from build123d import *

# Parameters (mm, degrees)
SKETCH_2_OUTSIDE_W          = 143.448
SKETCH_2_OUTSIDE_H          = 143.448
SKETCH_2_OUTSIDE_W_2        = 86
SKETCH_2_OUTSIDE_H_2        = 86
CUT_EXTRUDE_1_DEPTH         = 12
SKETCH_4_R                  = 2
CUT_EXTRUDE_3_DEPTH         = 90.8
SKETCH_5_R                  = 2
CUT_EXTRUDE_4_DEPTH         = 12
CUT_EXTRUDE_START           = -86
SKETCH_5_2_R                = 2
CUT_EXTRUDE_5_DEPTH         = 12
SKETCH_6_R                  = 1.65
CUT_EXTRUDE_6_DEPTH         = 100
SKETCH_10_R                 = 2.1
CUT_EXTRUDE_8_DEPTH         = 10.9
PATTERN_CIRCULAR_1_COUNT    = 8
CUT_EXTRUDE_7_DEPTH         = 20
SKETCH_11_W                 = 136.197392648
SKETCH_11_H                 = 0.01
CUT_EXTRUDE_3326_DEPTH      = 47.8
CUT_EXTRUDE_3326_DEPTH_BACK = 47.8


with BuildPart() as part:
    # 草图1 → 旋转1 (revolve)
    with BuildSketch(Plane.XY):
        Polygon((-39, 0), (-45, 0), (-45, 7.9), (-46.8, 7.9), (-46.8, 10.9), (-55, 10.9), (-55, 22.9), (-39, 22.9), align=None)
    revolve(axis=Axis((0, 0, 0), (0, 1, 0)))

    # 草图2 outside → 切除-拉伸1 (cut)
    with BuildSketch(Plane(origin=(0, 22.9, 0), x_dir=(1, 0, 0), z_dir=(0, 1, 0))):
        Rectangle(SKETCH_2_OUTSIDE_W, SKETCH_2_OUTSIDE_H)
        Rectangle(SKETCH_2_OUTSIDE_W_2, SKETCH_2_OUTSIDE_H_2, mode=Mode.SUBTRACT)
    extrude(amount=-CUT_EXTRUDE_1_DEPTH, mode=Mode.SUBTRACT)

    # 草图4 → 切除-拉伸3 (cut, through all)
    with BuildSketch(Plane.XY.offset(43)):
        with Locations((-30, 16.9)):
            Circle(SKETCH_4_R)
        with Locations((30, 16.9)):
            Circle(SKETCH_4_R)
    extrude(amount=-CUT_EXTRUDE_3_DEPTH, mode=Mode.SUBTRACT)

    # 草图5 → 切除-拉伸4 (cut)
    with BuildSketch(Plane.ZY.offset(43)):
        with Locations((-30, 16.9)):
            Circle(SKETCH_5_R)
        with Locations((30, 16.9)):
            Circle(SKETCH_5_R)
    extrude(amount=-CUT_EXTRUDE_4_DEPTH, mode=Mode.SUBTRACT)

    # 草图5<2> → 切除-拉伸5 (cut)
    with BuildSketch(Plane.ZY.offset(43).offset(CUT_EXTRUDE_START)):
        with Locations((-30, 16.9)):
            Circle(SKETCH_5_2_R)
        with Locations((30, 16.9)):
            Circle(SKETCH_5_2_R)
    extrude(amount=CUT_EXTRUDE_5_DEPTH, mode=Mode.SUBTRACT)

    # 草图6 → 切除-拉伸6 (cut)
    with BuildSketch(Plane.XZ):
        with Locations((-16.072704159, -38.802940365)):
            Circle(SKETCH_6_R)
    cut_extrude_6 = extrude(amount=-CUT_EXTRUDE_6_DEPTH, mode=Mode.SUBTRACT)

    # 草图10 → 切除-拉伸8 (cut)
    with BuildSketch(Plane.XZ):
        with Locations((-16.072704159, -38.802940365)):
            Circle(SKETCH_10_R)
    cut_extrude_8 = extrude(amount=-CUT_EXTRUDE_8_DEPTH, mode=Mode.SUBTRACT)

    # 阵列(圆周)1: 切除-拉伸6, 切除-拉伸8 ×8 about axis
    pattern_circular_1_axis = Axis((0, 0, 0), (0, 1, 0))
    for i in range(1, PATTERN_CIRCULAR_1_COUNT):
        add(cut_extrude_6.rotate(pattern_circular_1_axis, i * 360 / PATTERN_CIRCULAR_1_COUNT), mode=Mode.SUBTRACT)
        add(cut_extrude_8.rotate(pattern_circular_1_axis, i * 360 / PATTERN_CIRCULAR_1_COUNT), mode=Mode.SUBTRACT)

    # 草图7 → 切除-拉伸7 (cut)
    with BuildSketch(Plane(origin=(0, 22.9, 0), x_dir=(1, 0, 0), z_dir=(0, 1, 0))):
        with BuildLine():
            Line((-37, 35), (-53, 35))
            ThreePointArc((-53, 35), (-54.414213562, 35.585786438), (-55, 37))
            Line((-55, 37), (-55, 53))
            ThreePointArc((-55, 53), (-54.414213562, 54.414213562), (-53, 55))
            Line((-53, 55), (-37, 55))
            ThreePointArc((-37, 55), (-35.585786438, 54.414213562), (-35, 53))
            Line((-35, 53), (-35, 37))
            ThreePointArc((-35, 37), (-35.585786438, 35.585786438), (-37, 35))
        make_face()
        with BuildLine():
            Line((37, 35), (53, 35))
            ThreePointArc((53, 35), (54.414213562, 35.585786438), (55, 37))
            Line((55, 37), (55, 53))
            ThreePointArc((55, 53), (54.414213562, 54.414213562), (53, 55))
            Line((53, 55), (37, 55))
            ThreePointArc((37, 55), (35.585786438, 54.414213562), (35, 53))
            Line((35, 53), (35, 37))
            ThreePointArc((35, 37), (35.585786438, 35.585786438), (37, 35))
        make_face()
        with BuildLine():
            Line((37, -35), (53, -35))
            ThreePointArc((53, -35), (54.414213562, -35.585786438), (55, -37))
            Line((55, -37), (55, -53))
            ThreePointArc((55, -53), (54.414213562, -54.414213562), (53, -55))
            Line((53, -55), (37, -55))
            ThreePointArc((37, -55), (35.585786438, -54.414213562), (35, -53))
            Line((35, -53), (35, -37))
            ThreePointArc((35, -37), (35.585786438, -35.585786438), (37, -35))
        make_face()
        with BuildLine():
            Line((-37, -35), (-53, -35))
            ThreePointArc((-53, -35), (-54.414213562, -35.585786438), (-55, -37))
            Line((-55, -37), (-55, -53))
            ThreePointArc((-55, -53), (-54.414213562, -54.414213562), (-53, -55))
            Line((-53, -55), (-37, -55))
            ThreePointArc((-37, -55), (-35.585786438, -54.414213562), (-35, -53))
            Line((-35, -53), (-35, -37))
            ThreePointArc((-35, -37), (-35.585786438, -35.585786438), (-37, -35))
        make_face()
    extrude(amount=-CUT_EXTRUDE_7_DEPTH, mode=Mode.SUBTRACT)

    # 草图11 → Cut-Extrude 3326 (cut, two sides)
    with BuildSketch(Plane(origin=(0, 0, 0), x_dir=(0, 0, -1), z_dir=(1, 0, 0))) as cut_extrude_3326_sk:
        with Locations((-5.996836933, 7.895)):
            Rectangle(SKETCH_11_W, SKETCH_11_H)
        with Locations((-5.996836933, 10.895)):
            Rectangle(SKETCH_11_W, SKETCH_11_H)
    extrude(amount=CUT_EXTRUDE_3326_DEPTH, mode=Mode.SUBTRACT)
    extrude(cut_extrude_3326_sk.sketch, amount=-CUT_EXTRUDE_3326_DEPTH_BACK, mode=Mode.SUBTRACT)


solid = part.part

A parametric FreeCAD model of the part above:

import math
import FreeCAD as App
import Part
import Sketcher
from FreeCAD import Vector
Q = App.Units.Quantity


def add_polygon(sketch, points):
    """Adds a closed chain of lines whose ends are joined by coincident constraints."""
    first, n = sketch.GeometryCount, len(points)
    for a, b in zip(points, points[1:] + points[:1]):
        sketch.addGeometry(Part.LineSegment(App.Vector(*a, 0), App.Vector(*b, 0)), False)
    for i in range(n):
        sketch.addConstraint(Sketcher.Constraint("Coincident", first + i, 2, first + (i + 1) % n, 1))

doc = App.newDocument("Part")
body = doc.addObject("PartDesign::Body", "Body")
body.AllowCompound = True

# Sketch on XY plane
sketch1 = doc.addObject("Sketcher::SketchObject", "Sketch")
body.addObject(sketch1)
sketch1.AttachmentSupport = (doc.XY_Plane, [""])
sketch1.MapMode = "FlatFace"
add_polygon(sketch1, [(-45, 0), (-39, 0), (-39, 22.9), (-55, 22.9), (-55, 10.9), (-46.8, 10.9), (-46.8, 7.9), (-45, 7.9)])  # lines 0-7
sketch1.addConstraint(Sketcher.Constraint("Horizontal", 0))
sketch1.addConstraint(Sketcher.Constraint("Vertical", 1))
sketch1.addConstraint(Sketcher.Constraint("Horizontal", 2))
sketch1.addConstraint(Sketcher.Constraint("Vertical", 3))
sketch1.addConstraint(Sketcher.Constraint("Horizontal", 4))
sketch1.addConstraint(Sketcher.Constraint("Vertical", 5))
sketch1.addConstraint(Sketcher.Constraint("Horizontal", 6))
sketch1.addConstraint(Sketcher.Constraint("Vertical", 7))
sketch1.addConstraint(Sketcher.Constraint("PointOnObject", 0, 2, -1))
sketch1.addConstraint(Sketcher.Constraint("DistanceX", 0, 1, 0, 2, Q("6 mm")))
sketch1.addConstraint(Sketcher.Constraint("DistanceX", 2, 2, 2, 1, Q("16 mm")))
sketch1.addConstraint(Sketcher.Constraint("DistanceY", 3, 2, 3, 1, Q("12 mm")))
sketch1.addConstraint(Sketcher.Constraint("DistanceY", 5, 2, 5, 1, Q("3 mm")))
sketch1.addConstraint(Sketcher.Constraint("DistanceX", 4, 1, 4, 2, Q("8.2 mm")))
sketch1.addConstraint(Sketcher.Constraint("DistanceY", 1, 1, 1, 2, Q("22.9 mm")))
sketch1.addConstraint(Sketcher.Constraint("DistanceX", 0, 2, -1, 1, Q("39 mm")))
revolution = doc.addObject("PartDesign::Revolution", "Revolution")
body.addObject(revolution)
revolution.Profile = sketch1
revolution.ReferenceAxis = (sketch1, ["V_Axis"])
revolution.Angle = 360

# Sketch on XZ plane
sketch2 = doc.addObject("Sketcher::SketchObject", "Sketch001")
body.addObject(sketch2)
sketch2.AttachmentSupport = (doc.XZ_Plane, [""])
sketch2.MapMode = "FlatFace"
sketch2.AttachmentOffset = App.Placement(Vector(0, 0, -22.9), App.Rotation())
add_polygon(sketch2, [(-71.724, -71.724), (-71.724, 71.724), (71.724, 71.724), (71.724, -71.724)])  # lines 0-3
add_polygon(sketch2, [(43, 43), (-43, 43), (-43, -43), (43, -43)])  # lines 4-7
sketch2.addConstraint(Sketcher.Constraint("Vertical", 0))
sketch2.addConstraint(Sketcher.Constraint("Horizontal", 1))
sketch2.addConstraint(Sketcher.Constraint("Vertical", 2))
sketch2.addConstraint(Sketcher.Constraint("Horizontal", 3))
sketch2.addConstraint(Sketcher.Constraint("Horizontal", 4))
sketch2.addConstraint(Sketcher.Constraint("Vertical", 5))
sketch2.addConstraint(Sketcher.Constraint("Horizontal", 6))
sketch2.addConstraint(Sketcher.Constraint("Vertical", 7))
sketch2.addConstraint(Sketcher.Constraint("Symmetric", 0, 2, 2, 2, -1, 1))
sketch2.addConstraint(Sketcher.Constraint("Symmetric", 4, 2, 6, 2, -1, 1))
sketch2.addConstraint(Sketcher.Constraint("Equal", 3, 0))
sketch2.addConstraint(Sketcher.Constraint("Equal", 6, 5))
sketch2.addConstraint(Sketcher.Constraint("DistanceX", 4, 2, 4, 1, Q("86 mm")))
sketch2.addConstraint(Sketcher.Constraint("DistanceX", 1, 1, 1, 2, Q("143.448 mm")))
pocket1 = doc.addObject("PartDesign::Pocket", "Pocket")
body.addObject(pocket1)
pocket1.Profile = sketch2
pocket1.Length = 12
pocket1.Reversed = True

# Sketch on XY plane
sketch3 = doc.addObject("Sketcher::SketchObject", "Sketch002")
body.addObject(sketch3)
sketch3.AttachmentSupport = (doc.XY_Plane, [""])
sketch3.MapMode = "FlatFace"
sketch3.AttachmentOffset = App.Placement(Vector(0, 0, 43), App.Rotation())
sketch3.addGeometry(Part.Circle(Vector(-30, 16.9, 0), Vector(0, 0, 1), 2), False)
sketch3.addGeometry(Part.Circle(Vector(30, 16.9, 0), Vector(0, 0, 1), 2), False)
sketch3.addConstraint(Sketcher.Constraint("Equal", 0, 1))
sketch3.addConstraint(Sketcher.Constraint("Symmetric", 0, 3, 1, 3, -2))
sketch3.addConstraint(Sketcher.Constraint("Diameter", 0, Q("4 mm")))
sketch3.addConstraint(Sketcher.Constraint("DistanceX", 0, 3, -1, 1, Q("30 mm")))
sketch3.addConstraint(Sketcher.Constraint("DistanceY", -1, 1, 0, 3, Q("16.9 mm")))
pocket2 = doc.addObject("PartDesign::Pocket", "Pocket001")
body.addObject(pocket2)
pocket2.Profile = sketch3
pocket2.Type = "ThroughAll"

# Sketch on YZ plane
sketch4 = doc.addObject("Sketcher::SketchObject", "Sketch003")
body.addObject(sketch4)
sketch4.AttachmentSupport = (doc.YZ_Plane, [""])
sketch4.MapMode = "FlatFace"
sketch4.AttachmentOffset = App.Placement(Vector(0, 0, -43), App.Rotation())
sketch4.addGeometry(Part.Circle(Vector(16.9, -30, 0), Vector(0, 0, 1), 2), False)
sketch4.addGeometry(Part.Circle(Vector(16.9, 30, 0), Vector(0, 0, 1), 2), False)
sketch4.addConstraint(Sketcher.Constraint("Equal", 0, 1))
sketch4.addConstraint(Sketcher.Constraint("Symmetric", 0, 3, 1, 3, -1))
sketch4.addConstraint(Sketcher.Constraint("Diameter", 0, Q("4 mm")))
sketch4.addConstraint(Sketcher.Constraint("DistanceY", 0, 3, -1, 1, Q("30 mm")))
sketch4.addConstraint(Sketcher.Constraint("DistanceX", -1, 1, 0, 3, Q("16.9 mm")))
pocket3 = doc.addObject("PartDesign::Pocket", "Pocket002")
body.addObject(pocket3)
pocket3.Profile = sketch4
pocket3.Length = 12
pocket3.Reversed = True

# Sketch on YZ plane
sketch5 = doc.addObject("Sketcher::SketchObject", "Sketch004")
body.addObject(sketch5)
sketch5.AttachmentSupport = (doc.YZ_Plane, [""])
sketch5.MapMode = "FlatFace"
sketch5.AttachmentOffset = App.Placement(Vector(0, 0, 43), App.Rotation())
sketch5.addGeometry(Part.Circle(Vector(16.9, -30, 0), Vector(0, 0, 1), 2), False)
sketch5.addGeometry(Part.Circle(Vector(16.9, 30, 0), Vector(0, 0, 1), 2), False)
sketch5.addConstraint(Sketcher.Constraint("Equal", 0, 1))
sketch5.addConstraint(Sketcher.Constraint("Symmetric", 0, 3, 1, 3, -1))
sketch5.addConstraint(Sketcher.Constraint("Diameter", 0, Q("4 mm")))
sketch5.addConstraint(Sketcher.Constraint("DistanceY", 0, 3, -1, 1, Q("30 mm")))
sketch5.addConstraint(Sketcher.Constraint("DistanceX", -1, 1, 0, 3, Q("16.9 mm")))
pocket4 = doc.addObject("PartDesign::Pocket", "Pocket003")
body.addObject(pocket4)
pocket4.Profile = sketch5
pocket4.Length = 12

# Sketch on XZ plane
sketch6 = doc.addObject("Sketcher::SketchObject", "Sketch005")
body.addObject(sketch6)
sketch6.AttachmentSupport = (doc.XZ_Plane, [""])
sketch6.MapMode = "FlatFace"
sketch6.addGeometry(Part.Circle(Vector(-16.072704, -38.80294, 0), Vector(0, 0, 1), 1.65), False)
sketch6.addConstraint(Sketcher.Constraint("Diameter", 0, Q("3.3 mm")))
sketch6.addConstraint(Sketcher.Constraint("DistanceY", 0, 3, -1, 1, Q("38.80294 mm")))
sketch6.addConstraint(Sketcher.Constraint("DistanceX", 0, 3, -1, 1, Q("16.072704 mm")))
pocket5 = doc.addObject("PartDesign::Pocket", "Pocket004")
body.addObject(pocket5)
pocket5.Profile = sketch6
pocket5.Length = 100

# Sketch on XZ plane
sketch7 = doc.addObject("Sketcher::SketchObject", "Sketch006")
body.addObject(sketch7)
sketch7.AttachmentSupport = (doc.XZ_Plane, [""])
sketch7.MapMode = "FlatFace"
sketch7.addGeometry(Part.Circle(Vector(-16.072704, -38.80294, 0), Vector(0, 0, 1), 2.1), False)
sketch7.addConstraint(Sketcher.Constraint("Diameter", 0, Q("4.2 mm")))
sketch7.addConstraint(Sketcher.Constraint("DistanceY", 0, 3, -1, 1, Q("38.80294 mm")))
sketch7.addConstraint(Sketcher.Constraint("DistanceX", 0, 3, -1, 1, Q("16.072704 mm")))
pocket6 = doc.addObject("PartDesign::Pocket", "Pocket005")
body.addObject(pocket6)
pocket6.Profile = sketch7
pocket6.Length = 10.9
doc.recompute()

polarpattern = doc.addObject("PartDesign::PolarPattern", "PolarPattern")
body.addObject(polarpattern)
polarpattern.Originals = [pocket5, pocket6]
polarpattern.Axis = (doc.Y_Axis, [""])
polarpattern.Angle = 360
polarpattern.Occurrences = 8
body.Tip = polarpattern

# Sketch on XZ plane
sketch8 = doc.addObject("Sketcher::SketchObject", "Sketch007")
body.addObject(sketch8)
sketch8.AttachmentSupport = (doc.XZ_Plane, [""])
sketch8.MapMode = "FlatFace"
sketch8.AttachmentOffset = App.Placement(Vector(0, 0, -22.9), App.Rotation())
sketch8.addGeometry(Part.LineSegment(Vector(-53, -35, 0), Vector(-37, -35, 0)), False)
sketch8.addGeometry(Part.ArcOfCircle(Part.Circle(Vector(-37, -37, 0), Vector(0, 0, 1), 2), math.radians(0), math.radians(90)), False)
sketch8.addGeometry(Part.LineSegment(Vector(-35, -37, 0), Vector(-35, -53, 0)), False)
sketch8.addGeometry(Part.ArcOfCircle(Part.Circle(Vector(-37, -53, 0), Vector(0, 0, 1), 2), math.radians(-90), math.radians(0)), False)
sketch8.addGeometry(Part.LineSegment(Vector(-37, -55, 0), Vector(-53, -55, 0)), False)
sketch8.addGeometry(Part.ArcOfCircle(Part.Circle(Vector(-53, -53, 0), Vector(0, 0, 1), 2), math.radians(-180), math.radians(-90)), False)
sketch8.addGeometry(Part.LineSegment(Vector(-55, -53, 0), Vector(-55, -37, 0)), False)
sketch8.addGeometry(Part.ArcOfCircle(Part.Circle(Vector(-53, -37, 0), Vector(0, 0, 1), 2), math.radians(90), math.radians(180)), False)
sketch8.addGeometry(Part.LineSegment(Vector(37, -35, 0), Vector(53, -35, 0)), False)
sketch8.addGeometry(Part.ArcOfCircle(Part.Circle(Vector(53, -37, 0), Vector(0, 0, 1), 2), math.radians(0), math.radians(90)), False)
sketch8.addGeometry(Part.LineSegment(Vector(55, -37, 0), Vector(55, -53, 0)), False)
sketch8.addGeometry(Part.ArcOfCircle(Part.Circle(Vector(53, -53, 0), Vector(0, 0, 1), 2), math.radians(-90), math.radians(0)), False)
sketch8.addGeometry(Part.LineSegment(Vector(53, -55, 0), Vector(37, -55, 0)), False)
sketch8.addGeometry(Part.ArcOfCircle(Part.Circle(Vector(37, -53, 0), Vector(0, 0, 1), 2), math.radians(-180), math.radians(-90)), False)
sketch8.addGeometry(Part.LineSegment(Vector(35, -53, 0), Vector(35, -37, 0)), False)
sketch8.addGeometry(Part.ArcOfCircle(Part.Circle(Vector(37, -37, 0), Vector(0, 0, 1), 2), math.radians(90), math.radians(180)), False)
sketch8.addGeometry(Part.LineSegment(Vector(53, 35, 0), Vector(37, 35, 0)), False)
sketch8.addGeometry(Part.ArcOfCircle(Part.Circle(Vector(37, 37, 0), Vector(0, 0, 1), 2), math.radians(-180), math.radians(-90)), False)
sketch8.addGeometry(Part.LineSegment(Vector(35, 37, 0), Vector(35, 53, 0)), False)
sketch8.addGeometry(Part.ArcOfCircle(Part.Circle(Vector(37, 53, 0), Vector(0, 0, 1), 2), math.radians(90), math.radians(180)), False)
sketch8.addGeometry(Part.LineSegment(Vector(37, 55, 0), Vector(53, 55, 0)), False)
sketch8.addGeometry(Part.ArcOfCircle(Part.Circle(Vector(53, 53, 0), Vector(0, 0, 1), 2), math.radians(0), math.radians(90)), False)
sketch8.addGeometry(Part.LineSegment(Vector(55, 53, 0), Vector(55, 37, 0)), False)
sketch8.addGeometry(Part.ArcOfCircle(Part.Circle(Vector(53, 37, 0), Vector(0, 0, 1), 2), math.radians(-90), math.radians(0)), False)
sketch8.addGeometry(Part.LineSegment(Vector(-37, 35, 0), Vector(-53, 35, 0)), False)
sketch8.addGeometry(Part.ArcOfCircle(Part.Circle(Vector(-53, 37, 0), Vector(0, 0, 1), 2), math.radians(-180), math.radians(-90)), False)
sketch8.addGeometry(Part.LineSegment(Vector(-55, 37, 0), Vector(-55, 53, 0)), False)
sketch8.addGeometry(Part.ArcOfCircle(Part.Circle(Vector(-53, 53, 0), Vector(0, 0, 1), 2), math.radians(90), math.radians(180)), False)
sketch8.addGeometry(Part.LineSegment(Vector(-53, 55, 0), Vector(-37, 55, 0)), False)
sketch8.addGeometry(Part.ArcOfCircle(Part.Circle(Vector(-37, 53, 0), Vector(0, 0, 1), 2), math.radians(0), math.radians(90)), False)
sketch8.addGeometry(Part.LineSegment(Vector(-35, 53, 0), Vector(-35, 37, 0)), False)
sketch8.addGeometry(Part.ArcOfCircle(Part.Circle(Vector(-37, 37, 0), Vector(0, 0, 1), 2), math.radians(-90), math.radians(0)), False)
sketch8.addConstraint(Sketcher.Constraint("Tangent", 0, 2, 1, 2))
sketch8.addConstraint(Sketcher.Constraint("Tangent", 1, 1, 2, 1))
sketch8.addConstraint(Sketcher.Constraint("Tangent", 2, 2, 3, 2))
sketch8.addConstraint(Sketcher.Constraint("Tangent", 3, 1, 4, 1))
sketch8.addConstraint(Sketcher.Constraint("Tangent", 4, 2, 5, 2))
sketch8.addConstraint(Sketcher.Constraint("Tangent", 5, 1, 6, 1))
sketch8.addConstraint(Sketcher.Constraint("Tangent", 6, 2, 7, 2))
sketch8.addConstraint(Sketcher.Constraint("Tangent", 7, 1, 0, 1))
sketch8.addConstraint(Sketcher.Constraint("Tangent", 8, 2, 9, 2))
sketch8.addConstraint(Sketcher.Constraint("Tangent", 9, 1, 10, 1))
sketch8.addConstraint(Sketcher.Constraint("Tangent", 10, 2, 11, 2))
sketch8.addConstraint(Sketcher.Constraint("Tangent", 11, 1, 12, 1))
sketch8.addConstraint(Sketcher.Constraint("Tangent", 12, 2, 13, 2))
sketch8.addConstraint(Sketcher.Constraint("Tangent", 13, 1, 14, 1))
sketch8.addConstraint(Sketcher.Constraint("Tangent", 14, 2, 15, 2))
sketch8.addConstraint(Sketcher.Constraint("Tangent", 15, 1, 8, 1))
sketch8.addConstraint(Sketcher.Constraint("Tangent", 16, 2, 17, 2))
sketch8.addConstraint(Sketcher.Constraint("Tangent", 17, 1, 18, 1))
sketch8.addConstraint(Sketcher.Constraint("Tangent", 18, 2, 19, 2))
sketch8.addConstraint(Sketcher.Constraint("Tangent", 19, 1, 20, 1))
sketch8.addConstraint(Sketcher.Constraint("Tangent", 20, 2, 21, 2))
sketch8.addConstraint(Sketcher.Constraint("Tangent", 21, 1, 22, 1))
sketch8.addConstraint(Sketcher.Constraint("Tangent", 22, 2, 23, 2))
sketch8.addConstraint(Sketcher.Constraint("Tangent", 23, 1, 16, 1))
sketch8.addConstraint(Sketcher.Constraint("Tangent", 24, 2, 25, 2))
sketch8.addConstraint(Sketcher.Constraint("Tangent", 25, 1, 26, 1))
sketch8.addConstraint(Sketcher.Constraint("Tangent", 26, 2, 27, 2))
sketch8.addConstraint(Sketcher.Constraint("Tangent", 27, 1, 28, 1))
sketch8.addConstraint(Sketcher.Constraint("Tangent", 28, 2, 29, 2))
sketch8.addConstraint(Sketcher.Constraint("Tangent", 29, 1, 30, 1))
sketch8.addConstraint(Sketcher.Constraint("Tangent", 30, 2, 31, 2))
sketch8.addConstraint(Sketcher.Constraint("Tangent", 31, 1, 24, 1))
sketch8.addConstraint(Sketcher.Constraint("Horizontal", 0))
sketch8.addConstraint(Sketcher.Constraint("Vertical", 2))
sketch8.addConstraint(Sketcher.Constraint("Horizontal", 4))
sketch8.addConstraint(Sketcher.Constraint("Vertical", 6))
sketch8.addConstraint(Sketcher.Constraint("Horizontal", 8))
sketch8.addConstraint(Sketcher.Constraint("Vertical", 10))
sketch8.addConstraint(Sketcher.Constraint("Horizontal", 12))
sketch8.addConstraint(Sketcher.Constraint("Vertical", 14))
sketch8.addConstraint(Sketcher.Constraint("Horizontal", 16))
sketch8.addConstraint(Sketcher.Constraint("Vertical", 18))
sketch8.addConstraint(Sketcher.Constraint("Horizontal", 20))
sketch8.addConstraint(Sketcher.Constraint("Vertical", 22))
sketch8.addConstraint(Sketcher.Constraint("Horizontal", 24))
sketch8.addConstraint(Sketcher.Constraint("Vertical", 26))
sketch8.addConstraint(Sketcher.Constraint("Horizontal", 28))
sketch8.addConstraint(Sketcher.Constraint("Vertical", 30))
sketch8.addConstraint(Sketcher.Constraint("Equal", 1, 3))
sketch8.addConstraint(Sketcher.Constraint("Equal", 3, 5))
sketch8.addConstraint(Sketcher.Constraint("Equal", 5, 7))
sketch8.addConstraint(Sketcher.Constraint("Equal", 7, 9))
sketch8.addConstraint(Sketcher.Constraint("Equal", 9, 11))
sketch8.addConstraint(Sketcher.Constraint("Equal", 11, 13))
sketch8.addConstraint(Sketcher.Constraint("Equal", 13, 15))
sketch8.addConstraint(Sketcher.Constraint("Equal", 15, 17))
sketch8.addConstraint(Sketcher.Constraint("Equal", 17, 19))
sketch8.addConstraint(Sketcher.Constraint("Equal", 19, 21))
sketch8.addConstraint(Sketcher.Constraint("Equal", 21, 23))
sketch8.addConstraint(Sketcher.Constraint("Equal", 23, 25))
sketch8.addConstraint(Sketcher.Constraint("Equal", 25, 27))
sketch8.addConstraint(Sketcher.Constraint("Equal", 27, 29))
sketch8.addConstraint(Sketcher.Constraint("Equal", 29, 31))
sketch8.addConstraint(Sketcher.Constraint("Symmetric", 1, 3, 17, 3, -1, 1))
sketch8.addConstraint(Sketcher.Constraint("Symmetric", 5, 3, 21, 3, -1, 1))
sketch8.addConstraint(Sketcher.Constraint("Symmetric", 9, 3, 25, 3, -1, 1))
sketch8.addConstraint(Sketcher.Constraint("Symmetric", 13, 3, 29, 3, -1, 1))
sketch8.addConstraint(Sketcher.Constraint("Symmetric", 7, 3, 9, 3, -2))
sketch8.addConstraint(Sketcher.Constraint("Symmetric", 3, 3, 13, 3, -2))
sketch8.addConstraint(Sketcher.Constraint("Equal", 28, 2))
sketch8.addConstraint(Sketcher.Constraint("Radius", 1, Q("2 mm")))
sketch8.addConstraint(Sketcher.Constraint("DistanceX", 0, 1, 0, 2, Q("16 mm")))
sketch8.addConstraint(Sketcher.Constraint("DistanceX", 1, 3, -1, 1, Q("37 mm")))
sketch8.addConstraint(Sketcher.Constraint("DistanceY", 1, 3, -1, 1, Q("37 mm")))
pocket7 = doc.addObject("PartDesign::Pocket", "Pocket006")
body.addObject(pocket7)
pocket7.Profile = sketch8
pocket7.Length = 20
pocket7.Reversed = True

# Sketch on YZ plane
sketch9 = doc.addObject("Sketcher::SketchObject", "Sketch008")
body.addObject(sketch9)
sketch9.AttachmentSupport = (doc.YZ_Plane, [""])
sketch9.MapMode = "FlatFace"
add_polygon(sketch9, [(7.9, 74.095533), (7.89, 74.095533), (7.89, -62.101859), (7.9, -62.101859)])  # lines 0-3
add_polygon(sketch9, [(10.9, 74.095533), (10.89, 74.095533), (10.89, -62.101859), (10.9, -62.101859)])  # lines 4-7
sketch9.addConstraint(Sketcher.Constraint("Horizontal", 0))
sketch9.addConstraint(Sketcher.Constraint("Vertical", 1))
sketch9.addConstraint(Sketcher.Constraint("Horizontal", 2))
sketch9.addConstraint(Sketcher.Constraint("Vertical", 3))
sketch9.addConstraint(Sketcher.Constraint("Horizontal", 4))
sketch9.addConstraint(Sketcher.Constraint("Vertical", 5))
sketch9.addConstraint(Sketcher.Constraint("Horizontal", 6))
sketch9.addConstraint(Sketcher.Constraint("Vertical", 7))
sketch9.addConstraint(Sketcher.Constraint("Horizontal", 3, 2, 4, 2))
sketch9.addConstraint(Sketcher.Constraint("Horizontal", 2, 2, 5, 2))
sketch9.addConstraint(Sketcher.Constraint("Equal", 2, 4))
sketch9.addConstraint(Sketcher.Constraint("DistanceX", 0, 2, 4, 2, Q("3 mm")))
sketch9.addConstraint(Sketcher.Constraint("DistanceX", 0, 2, 0, 1, Q("0.01 mm")))
sketch9.addConstraint(Sketcher.Constraint("DistanceX", -1, 1, 2, 2, Q("7.9 mm")))
sketch9.addConstraint(Sketcher.Constraint("DistanceY", 1, 2, 1, 1, Q("136.197393 mm")))
sketch9.addConstraint(Sketcher.Constraint("DistanceY", 1, 2, -1, 1, Q("62.101859 mm")))
pocket8 = doc.addObject("PartDesign::Pocket", "Pocket007")
body.addObject(pocket8)
pocket8.Profile = sketch9
pocket8.Type = "ThroughAll"
pocket8.Midplane = True

doc.recompute()
